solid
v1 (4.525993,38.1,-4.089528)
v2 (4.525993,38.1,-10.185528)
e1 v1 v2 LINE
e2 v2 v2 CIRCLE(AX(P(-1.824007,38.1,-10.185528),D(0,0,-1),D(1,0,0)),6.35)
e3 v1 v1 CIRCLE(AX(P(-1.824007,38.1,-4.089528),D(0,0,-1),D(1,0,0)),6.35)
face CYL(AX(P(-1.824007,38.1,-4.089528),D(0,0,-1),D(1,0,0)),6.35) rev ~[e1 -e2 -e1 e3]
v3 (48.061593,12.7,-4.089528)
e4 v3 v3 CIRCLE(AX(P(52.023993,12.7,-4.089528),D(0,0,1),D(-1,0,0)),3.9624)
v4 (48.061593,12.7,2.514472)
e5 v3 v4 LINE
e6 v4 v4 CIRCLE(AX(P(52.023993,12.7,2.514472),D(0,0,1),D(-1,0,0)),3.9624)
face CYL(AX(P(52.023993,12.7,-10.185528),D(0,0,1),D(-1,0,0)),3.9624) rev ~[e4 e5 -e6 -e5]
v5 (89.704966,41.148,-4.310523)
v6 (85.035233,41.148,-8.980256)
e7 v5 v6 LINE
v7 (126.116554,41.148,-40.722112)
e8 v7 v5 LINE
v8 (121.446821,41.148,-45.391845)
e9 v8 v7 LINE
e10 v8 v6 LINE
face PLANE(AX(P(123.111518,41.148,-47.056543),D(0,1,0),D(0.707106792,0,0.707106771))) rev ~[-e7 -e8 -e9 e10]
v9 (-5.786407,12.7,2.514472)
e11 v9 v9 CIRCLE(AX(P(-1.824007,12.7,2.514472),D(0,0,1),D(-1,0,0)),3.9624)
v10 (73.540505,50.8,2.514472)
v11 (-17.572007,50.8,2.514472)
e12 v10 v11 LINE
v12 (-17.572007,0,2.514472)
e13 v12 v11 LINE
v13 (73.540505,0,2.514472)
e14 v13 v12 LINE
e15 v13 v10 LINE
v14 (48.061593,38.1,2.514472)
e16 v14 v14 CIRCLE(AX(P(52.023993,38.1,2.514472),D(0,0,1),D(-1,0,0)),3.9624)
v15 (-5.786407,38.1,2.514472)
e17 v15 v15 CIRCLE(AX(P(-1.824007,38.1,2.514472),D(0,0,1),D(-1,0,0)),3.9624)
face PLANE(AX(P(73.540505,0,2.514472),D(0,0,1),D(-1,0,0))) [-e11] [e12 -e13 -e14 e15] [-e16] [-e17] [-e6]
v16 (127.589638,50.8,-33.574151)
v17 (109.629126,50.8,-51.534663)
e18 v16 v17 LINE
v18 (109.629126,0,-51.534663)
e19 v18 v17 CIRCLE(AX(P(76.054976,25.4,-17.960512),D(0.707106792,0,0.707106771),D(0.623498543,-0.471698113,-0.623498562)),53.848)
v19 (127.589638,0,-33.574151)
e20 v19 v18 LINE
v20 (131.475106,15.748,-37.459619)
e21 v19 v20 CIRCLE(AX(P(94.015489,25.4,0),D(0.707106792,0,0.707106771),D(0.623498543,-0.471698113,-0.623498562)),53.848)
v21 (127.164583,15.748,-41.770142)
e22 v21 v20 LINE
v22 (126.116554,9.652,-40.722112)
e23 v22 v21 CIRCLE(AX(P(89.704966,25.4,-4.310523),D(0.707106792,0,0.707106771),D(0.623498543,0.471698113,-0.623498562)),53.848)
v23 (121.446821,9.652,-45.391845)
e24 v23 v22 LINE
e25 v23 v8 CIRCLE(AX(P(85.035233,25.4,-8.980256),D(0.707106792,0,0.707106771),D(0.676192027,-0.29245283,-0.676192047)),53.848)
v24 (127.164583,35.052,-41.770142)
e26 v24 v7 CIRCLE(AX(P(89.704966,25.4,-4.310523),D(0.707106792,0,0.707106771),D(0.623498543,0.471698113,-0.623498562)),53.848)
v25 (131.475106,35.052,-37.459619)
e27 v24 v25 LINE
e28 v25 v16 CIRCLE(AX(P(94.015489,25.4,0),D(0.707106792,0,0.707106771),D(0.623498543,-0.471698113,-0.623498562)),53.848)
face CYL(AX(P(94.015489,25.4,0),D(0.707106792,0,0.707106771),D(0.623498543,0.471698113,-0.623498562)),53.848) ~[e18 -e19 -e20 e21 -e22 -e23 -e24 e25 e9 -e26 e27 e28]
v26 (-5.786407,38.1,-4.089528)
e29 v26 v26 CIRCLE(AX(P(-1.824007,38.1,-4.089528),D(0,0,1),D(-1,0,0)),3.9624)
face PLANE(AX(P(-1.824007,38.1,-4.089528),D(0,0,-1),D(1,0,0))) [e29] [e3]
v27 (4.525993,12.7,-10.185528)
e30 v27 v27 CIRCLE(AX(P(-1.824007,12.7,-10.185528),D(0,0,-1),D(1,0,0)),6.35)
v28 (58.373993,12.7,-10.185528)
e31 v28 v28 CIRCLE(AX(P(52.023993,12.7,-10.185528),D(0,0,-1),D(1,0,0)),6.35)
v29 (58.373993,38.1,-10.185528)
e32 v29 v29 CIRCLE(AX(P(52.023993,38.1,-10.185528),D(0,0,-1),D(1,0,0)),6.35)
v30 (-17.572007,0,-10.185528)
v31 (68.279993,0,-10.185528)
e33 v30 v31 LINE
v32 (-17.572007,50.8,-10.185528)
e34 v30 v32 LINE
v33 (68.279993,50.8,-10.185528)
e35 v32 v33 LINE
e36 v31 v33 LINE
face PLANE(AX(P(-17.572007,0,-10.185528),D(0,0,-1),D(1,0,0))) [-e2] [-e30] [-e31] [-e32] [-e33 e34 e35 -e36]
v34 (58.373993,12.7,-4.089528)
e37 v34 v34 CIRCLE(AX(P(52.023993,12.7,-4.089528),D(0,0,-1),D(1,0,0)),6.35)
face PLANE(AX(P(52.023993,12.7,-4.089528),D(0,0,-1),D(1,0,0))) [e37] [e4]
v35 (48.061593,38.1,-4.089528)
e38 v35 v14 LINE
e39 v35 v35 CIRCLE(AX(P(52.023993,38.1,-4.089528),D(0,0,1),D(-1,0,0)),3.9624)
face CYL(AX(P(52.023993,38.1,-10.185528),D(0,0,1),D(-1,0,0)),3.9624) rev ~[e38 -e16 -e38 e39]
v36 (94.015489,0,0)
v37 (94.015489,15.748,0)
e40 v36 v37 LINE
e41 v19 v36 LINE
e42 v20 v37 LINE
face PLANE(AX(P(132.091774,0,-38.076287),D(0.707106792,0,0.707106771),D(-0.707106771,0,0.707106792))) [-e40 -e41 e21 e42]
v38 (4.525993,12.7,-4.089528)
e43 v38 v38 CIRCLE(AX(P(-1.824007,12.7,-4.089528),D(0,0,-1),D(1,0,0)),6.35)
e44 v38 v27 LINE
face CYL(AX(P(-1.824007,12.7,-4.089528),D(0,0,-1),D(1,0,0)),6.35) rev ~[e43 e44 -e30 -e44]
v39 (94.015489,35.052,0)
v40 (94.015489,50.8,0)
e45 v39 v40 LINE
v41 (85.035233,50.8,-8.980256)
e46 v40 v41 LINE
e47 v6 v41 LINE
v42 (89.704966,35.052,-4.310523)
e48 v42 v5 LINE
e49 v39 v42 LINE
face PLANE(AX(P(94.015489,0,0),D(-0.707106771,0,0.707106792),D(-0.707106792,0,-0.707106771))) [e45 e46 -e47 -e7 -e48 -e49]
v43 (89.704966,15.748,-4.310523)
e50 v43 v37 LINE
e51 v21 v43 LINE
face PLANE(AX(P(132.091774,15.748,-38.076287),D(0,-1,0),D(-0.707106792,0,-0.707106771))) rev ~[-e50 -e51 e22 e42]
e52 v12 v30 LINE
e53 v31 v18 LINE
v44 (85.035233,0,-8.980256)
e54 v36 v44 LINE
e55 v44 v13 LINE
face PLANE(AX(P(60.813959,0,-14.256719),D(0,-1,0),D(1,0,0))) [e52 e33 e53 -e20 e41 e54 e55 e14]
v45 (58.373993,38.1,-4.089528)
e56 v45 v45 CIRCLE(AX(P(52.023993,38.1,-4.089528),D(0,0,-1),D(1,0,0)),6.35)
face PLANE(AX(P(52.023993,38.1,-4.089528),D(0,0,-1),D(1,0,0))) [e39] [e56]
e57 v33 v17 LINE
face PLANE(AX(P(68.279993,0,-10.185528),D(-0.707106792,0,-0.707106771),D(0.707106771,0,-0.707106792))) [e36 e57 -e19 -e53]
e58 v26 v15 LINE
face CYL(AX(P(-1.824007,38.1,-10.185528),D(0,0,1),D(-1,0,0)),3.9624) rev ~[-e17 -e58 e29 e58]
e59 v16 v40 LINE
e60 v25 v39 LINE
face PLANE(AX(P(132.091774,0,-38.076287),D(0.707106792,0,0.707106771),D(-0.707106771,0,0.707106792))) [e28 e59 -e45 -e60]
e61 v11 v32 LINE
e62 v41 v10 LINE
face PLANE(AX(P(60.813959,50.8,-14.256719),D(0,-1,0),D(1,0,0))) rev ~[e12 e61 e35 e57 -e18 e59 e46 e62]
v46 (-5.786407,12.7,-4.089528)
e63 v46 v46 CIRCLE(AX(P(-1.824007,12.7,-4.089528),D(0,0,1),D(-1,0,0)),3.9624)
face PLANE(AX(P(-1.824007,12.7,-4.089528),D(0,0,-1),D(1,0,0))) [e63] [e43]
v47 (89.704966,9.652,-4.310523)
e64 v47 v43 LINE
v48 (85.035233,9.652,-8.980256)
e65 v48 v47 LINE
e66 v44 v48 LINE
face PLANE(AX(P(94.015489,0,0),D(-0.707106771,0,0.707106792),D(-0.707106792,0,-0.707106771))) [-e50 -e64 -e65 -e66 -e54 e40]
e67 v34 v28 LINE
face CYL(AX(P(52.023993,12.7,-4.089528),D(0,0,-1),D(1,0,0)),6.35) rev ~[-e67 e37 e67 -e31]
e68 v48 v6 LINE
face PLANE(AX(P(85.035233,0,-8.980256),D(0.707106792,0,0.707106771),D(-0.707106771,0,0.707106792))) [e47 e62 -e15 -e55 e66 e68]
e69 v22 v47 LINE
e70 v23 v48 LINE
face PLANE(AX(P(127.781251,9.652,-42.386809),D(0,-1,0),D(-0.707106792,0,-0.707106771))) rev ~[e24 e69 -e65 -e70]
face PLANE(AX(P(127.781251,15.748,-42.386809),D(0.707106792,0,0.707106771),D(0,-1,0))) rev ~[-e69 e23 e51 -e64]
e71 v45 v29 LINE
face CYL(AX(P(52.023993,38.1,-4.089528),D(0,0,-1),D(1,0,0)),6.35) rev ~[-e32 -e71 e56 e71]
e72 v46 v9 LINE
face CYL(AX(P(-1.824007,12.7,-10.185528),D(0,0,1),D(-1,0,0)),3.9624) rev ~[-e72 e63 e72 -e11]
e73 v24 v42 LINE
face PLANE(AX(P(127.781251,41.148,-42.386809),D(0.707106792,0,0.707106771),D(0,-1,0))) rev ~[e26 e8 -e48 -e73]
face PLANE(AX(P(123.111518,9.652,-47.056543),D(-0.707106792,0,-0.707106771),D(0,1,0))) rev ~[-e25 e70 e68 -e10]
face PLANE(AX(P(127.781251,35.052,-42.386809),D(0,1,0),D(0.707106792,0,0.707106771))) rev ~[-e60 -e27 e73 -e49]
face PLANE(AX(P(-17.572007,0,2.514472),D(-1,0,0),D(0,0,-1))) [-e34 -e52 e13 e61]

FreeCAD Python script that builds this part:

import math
import FreeCAD as App
import Part
import Sketcher

V = App.Vector
Q = App.Units.Quantity


def add_polygon(sketch, points):
    """Adds a closed chain of lines whose ends are joined by coincident constraints."""
    first, n = sketch.GeometryCount, len(points)
    for a, b in zip(points, points[1:] + points[:1]):
        sketch.addGeometry(Part.LineSegment(App.Vector(*a, 0), App.Vector(*b, 0)), False)
    for i in range(n):
        sketch.addConstraint(Sketcher.Constraint("Coincident", first + i, 2, first + (i + 1) % n, 1))

doc = App.newDocument("Part")
body = doc.addObject("PartDesign::Body", "Body")

# Sketch on XZ plane
sketch1 = body.newObject("Sketcher::SketchObject", "Sketch")
sketch1.AttachmentSupport = (doc.getObject("XZ_Plane"), [""])
sketch1.MapMode = "FlatFace"
add_polygon(sketch1, [(73.540505, 2.514472), (-17.572007, 2.514472), (-17.572007, -10.185528), (68.279993, -10.185528), (114.131262, -56.036798), (132.091774, -38.076287), (94.015489, 0), (85.035233, -8.980256)])  # lines 0-7
sketch1.addConstraint([
    Sketcher.Constraint("Horizontal", 0),
    Sketcher.Constraint("Vertical", 1),
    Sketcher.Constraint("Horizontal", 2),
    Sketcher.Constraint("PointOnObject", 5, 2, -1),
    Sketcher.Constraint("Perpendicular", 3, 4),
    Sketcher.Constraint("Perpendicular", 4, 5),
    Sketcher.Constraint("Perpendicular", 5, 6),
    Sketcher.Constraint("Perpendicular", 6, 7),
    Sketcher.Constraint("Distance", 4, Q("1 in")),
    Sketcher.Constraint("DistanceY", 1, 2, 1, 1, Q("0.5 in")),
    Sketcher.Constraint("Angle", 3, Q("-45.000001 deg")),
    Sketcher.Constraint("Distance", 6, Q("0.5 in")),
    Sketcher.Constraint("DistanceX", 2, 1, 2, 2, Q("3.38 in")),
    Sketcher.Constraint("Distance", 5, Q("2.12 in")),
    Sketcher.Constraint("Distance", 7, Q("0.64 in")),
    Sketcher.Constraint("DistanceX", -1, 1, 3, 2, Q("114.131262 mm")),
])
pad1 = body.newObject("PartDesign::Pad", "Pad")
pad1.Profile = sketch1
pad1.Length = Q("2 in")
pad1.Reversed = True

# Sketch on XY plane
sketch2 = body.newObject("Sketcher::SketchObject", "Sketch001")
sketch2.AttachmentSupport = (doc.getObject("XY_Plane"), [""])
sketch2.MapMode = "FlatFace"
sketch2.AttachmentOffset = App.Placement(V(0, 0, -10.185528), App.Rotation())
sketch2.addGeometry([
    Part.Circle(V(-1.824007, 12.7, 0), V(0, 0, 1), 3.9624),
    Part.Circle(V(-1.824007, 38.1, 0), V(0, 0, 1), 3.9624),
    Part.Circle(V(52.023993, 12.7, 0), V(0, 0, 1), 3.9624),
    Part.Circle(V(52.023993, 38.1, 0), V(0, 0, 1), 3.9624),
], False)
sketch2.addConstraint([
    Sketcher.Constraint("Equal", 0, 1),
    Sketcher.Constraint("Equal", 1, 2),
    Sketcher.Constraint("Equal", 2, 3),
    Sketcher.Constraint("Horizontal", 0, 3, 2, 3),
    Sketcher.Constraint("Horizontal", 1, 3, 3, 3),
    Sketcher.Constraint("Vertical", 0, 3, 1, 3),
    Sketcher.Constraint("Vertical", 2, 3, 3, 3),
    Sketcher.Constraint("Diameter", 0, Q("0.312 in")),
    Sketcher.Constraint("DistanceY", 0, 3, 1, 3, Q("1 in")),
    Sketcher.Constraint("DistanceY", -1, 1, 0, 3, Q("0.5 in")),
    Sketcher.Constraint("DistanceX", 0, 3, 2, 3, Q("2.12 in")),
    Sketcher.Constraint("DistanceX", 0, 3, -1, 1, Q("1.824007 mm")),
])
doc.recompute()
hole = body.newObject("PartDesign::Hole", "Hole")
hole.Profile = sketch2
hole.ThreadType = "None"
hole.Diameter = Q("0.312 in")
hole.DepthType = "ThroughAll"
hole.HoleCutType = "Counterbore"
hole.HoleCutDiameter = Q("0.5 in")
hole.HoleCutDepth = Q("0.24 in")
hole.Reversed = True

# Sketch on an angled plane
sketch3 = body.newObject("Sketcher::SketchObject", "Sketch002")
sketch3.Placement = App.Placement(V(47.007746, 0, 47.007744), App.Rotation(V(0, 1, 0), V(-0.707106771, 0, 0.707106792), V(0.707106792, 0, 0.707106771), "ZXY"))
sketch3.addGeometry([
    Part.ArcOfCircle(Part.Circle(V(25.4, -66.478989, 0), V(0, 0, 1), 53.848), math.radians(-118.144581), math.radians(-61.855419)),
    Part.LineSegment(V(0, -113.960007, 0), V(0, -123.427481, 0)),
    Part.LineSegment(V(0, -123.427481, 0), V(50.8, -123.427481, 0)),
    Part.LineSegment(V(50.8, -123.427481, 0), V(50.8, -113.960007, 0)),
], False)
sketch3.addConstraint([
    Sketcher.Constraint("Coincident", 0, 1, 1, 1),
    Sketcher.Constraint("Coincident", 1, 2, 2, 1),
    Sketcher.Constraint("Coincident", 2, 2, 3, 1),
    Sketcher.Constraint("Coincident", 3, 2, 0, 2),
    Sketcher.Constraint("Vertical", 1),
    Sketcher.Constraint("Horizontal", 2),
    Sketcher.Constraint("Vertical", 3),
    Sketcher.Constraint("PointOnObject", 0, 1, -2),
    Sketcher.Constraint("Horizontal", 0, 1, 3, 2),
    Sketcher.Constraint("DistanceX", 2, 1, 2, 2, Q("2 in")),
    Sketcher.Constraint("Radius", 0, Q("2.12 in")),
    Sketcher.Constraint("DistanceY", 1, 2, 1, 1, Q("9.467473 mm")),
    Sketcher.Constraint("DistanceY", 0, 3, -1, 1, Q("66.478989 mm")),
])
pocket1 = body.newObject("PartDesign::Pocket", "Pocket")
pocket1.Profile = sketch3
pocket1.Type = "ThroughAll"

# Sketch on an angled plane
sketch4 = body.newObject("Sketcher::SketchObject", "Sketch003")
sketch4.Placement = App.Placement(V(85.084028, 0, -85.084031), App.Rotation(V(0.707106792, 0, 0.707106771), V(0, -1.000000001, 0), V(0.707106771, 0, -0.707106792), "ZXY"))
add_polygon(sketch4, [(66.478991, -35.052), (66.478991, -15.748), (60.382991, -15.748), (60.382991, -9.652), (53.778991, -9.652), (53.778991, -41.148), (60.382991, -41.148), (60.382991, -35.052)])  # lines 0-7
sketch4.addConstraint([
    Sketcher.Constraint("Vertical", 0),
    Sketcher.Constraint("Horizontal", 1),
    Sketcher.Constraint("Vertical", 2),
    Sketcher.Constraint("Horizontal", 3),
    Sketcher.Constraint("Vertical", 4),
    Sketcher.Constraint("Horizontal", 5),
    Sketcher.Constraint("Vertical", 6),
    Sketcher.Constraint("Horizontal", 7),
    Sketcher.Constraint("Vertical", 2, 2, 5, 2),
    Sketcher.Constraint("Equal", 7, 2),
    Sketcher.Constraint("Equal", 2, 6),
    Sketcher.Constraint("DistanceY", 4, 2, 1, 2, Q("1 in")),
    Sketcher.Constraint("DistanceX", 1, 2, 1, 1, Q("0.24 in")),
    Sketcher.Constraint("DistanceX", 3, 2, 3, 1, Q("0.26 in")),
    Sketcher.Constraint("DistanceY", 0, 2, -1, 1, Q("0.62 in")),
    Sketcher.Constraint("DistanceX", -1, 1, 0, 2, Q("66.478991 mm")),
])
pocket2 = body.newObject("PartDesign::Pocket", "Pocket001")
pocket2.Profile = sketch4
pocket2.Type = "ThroughAll"

doc.recompute()
